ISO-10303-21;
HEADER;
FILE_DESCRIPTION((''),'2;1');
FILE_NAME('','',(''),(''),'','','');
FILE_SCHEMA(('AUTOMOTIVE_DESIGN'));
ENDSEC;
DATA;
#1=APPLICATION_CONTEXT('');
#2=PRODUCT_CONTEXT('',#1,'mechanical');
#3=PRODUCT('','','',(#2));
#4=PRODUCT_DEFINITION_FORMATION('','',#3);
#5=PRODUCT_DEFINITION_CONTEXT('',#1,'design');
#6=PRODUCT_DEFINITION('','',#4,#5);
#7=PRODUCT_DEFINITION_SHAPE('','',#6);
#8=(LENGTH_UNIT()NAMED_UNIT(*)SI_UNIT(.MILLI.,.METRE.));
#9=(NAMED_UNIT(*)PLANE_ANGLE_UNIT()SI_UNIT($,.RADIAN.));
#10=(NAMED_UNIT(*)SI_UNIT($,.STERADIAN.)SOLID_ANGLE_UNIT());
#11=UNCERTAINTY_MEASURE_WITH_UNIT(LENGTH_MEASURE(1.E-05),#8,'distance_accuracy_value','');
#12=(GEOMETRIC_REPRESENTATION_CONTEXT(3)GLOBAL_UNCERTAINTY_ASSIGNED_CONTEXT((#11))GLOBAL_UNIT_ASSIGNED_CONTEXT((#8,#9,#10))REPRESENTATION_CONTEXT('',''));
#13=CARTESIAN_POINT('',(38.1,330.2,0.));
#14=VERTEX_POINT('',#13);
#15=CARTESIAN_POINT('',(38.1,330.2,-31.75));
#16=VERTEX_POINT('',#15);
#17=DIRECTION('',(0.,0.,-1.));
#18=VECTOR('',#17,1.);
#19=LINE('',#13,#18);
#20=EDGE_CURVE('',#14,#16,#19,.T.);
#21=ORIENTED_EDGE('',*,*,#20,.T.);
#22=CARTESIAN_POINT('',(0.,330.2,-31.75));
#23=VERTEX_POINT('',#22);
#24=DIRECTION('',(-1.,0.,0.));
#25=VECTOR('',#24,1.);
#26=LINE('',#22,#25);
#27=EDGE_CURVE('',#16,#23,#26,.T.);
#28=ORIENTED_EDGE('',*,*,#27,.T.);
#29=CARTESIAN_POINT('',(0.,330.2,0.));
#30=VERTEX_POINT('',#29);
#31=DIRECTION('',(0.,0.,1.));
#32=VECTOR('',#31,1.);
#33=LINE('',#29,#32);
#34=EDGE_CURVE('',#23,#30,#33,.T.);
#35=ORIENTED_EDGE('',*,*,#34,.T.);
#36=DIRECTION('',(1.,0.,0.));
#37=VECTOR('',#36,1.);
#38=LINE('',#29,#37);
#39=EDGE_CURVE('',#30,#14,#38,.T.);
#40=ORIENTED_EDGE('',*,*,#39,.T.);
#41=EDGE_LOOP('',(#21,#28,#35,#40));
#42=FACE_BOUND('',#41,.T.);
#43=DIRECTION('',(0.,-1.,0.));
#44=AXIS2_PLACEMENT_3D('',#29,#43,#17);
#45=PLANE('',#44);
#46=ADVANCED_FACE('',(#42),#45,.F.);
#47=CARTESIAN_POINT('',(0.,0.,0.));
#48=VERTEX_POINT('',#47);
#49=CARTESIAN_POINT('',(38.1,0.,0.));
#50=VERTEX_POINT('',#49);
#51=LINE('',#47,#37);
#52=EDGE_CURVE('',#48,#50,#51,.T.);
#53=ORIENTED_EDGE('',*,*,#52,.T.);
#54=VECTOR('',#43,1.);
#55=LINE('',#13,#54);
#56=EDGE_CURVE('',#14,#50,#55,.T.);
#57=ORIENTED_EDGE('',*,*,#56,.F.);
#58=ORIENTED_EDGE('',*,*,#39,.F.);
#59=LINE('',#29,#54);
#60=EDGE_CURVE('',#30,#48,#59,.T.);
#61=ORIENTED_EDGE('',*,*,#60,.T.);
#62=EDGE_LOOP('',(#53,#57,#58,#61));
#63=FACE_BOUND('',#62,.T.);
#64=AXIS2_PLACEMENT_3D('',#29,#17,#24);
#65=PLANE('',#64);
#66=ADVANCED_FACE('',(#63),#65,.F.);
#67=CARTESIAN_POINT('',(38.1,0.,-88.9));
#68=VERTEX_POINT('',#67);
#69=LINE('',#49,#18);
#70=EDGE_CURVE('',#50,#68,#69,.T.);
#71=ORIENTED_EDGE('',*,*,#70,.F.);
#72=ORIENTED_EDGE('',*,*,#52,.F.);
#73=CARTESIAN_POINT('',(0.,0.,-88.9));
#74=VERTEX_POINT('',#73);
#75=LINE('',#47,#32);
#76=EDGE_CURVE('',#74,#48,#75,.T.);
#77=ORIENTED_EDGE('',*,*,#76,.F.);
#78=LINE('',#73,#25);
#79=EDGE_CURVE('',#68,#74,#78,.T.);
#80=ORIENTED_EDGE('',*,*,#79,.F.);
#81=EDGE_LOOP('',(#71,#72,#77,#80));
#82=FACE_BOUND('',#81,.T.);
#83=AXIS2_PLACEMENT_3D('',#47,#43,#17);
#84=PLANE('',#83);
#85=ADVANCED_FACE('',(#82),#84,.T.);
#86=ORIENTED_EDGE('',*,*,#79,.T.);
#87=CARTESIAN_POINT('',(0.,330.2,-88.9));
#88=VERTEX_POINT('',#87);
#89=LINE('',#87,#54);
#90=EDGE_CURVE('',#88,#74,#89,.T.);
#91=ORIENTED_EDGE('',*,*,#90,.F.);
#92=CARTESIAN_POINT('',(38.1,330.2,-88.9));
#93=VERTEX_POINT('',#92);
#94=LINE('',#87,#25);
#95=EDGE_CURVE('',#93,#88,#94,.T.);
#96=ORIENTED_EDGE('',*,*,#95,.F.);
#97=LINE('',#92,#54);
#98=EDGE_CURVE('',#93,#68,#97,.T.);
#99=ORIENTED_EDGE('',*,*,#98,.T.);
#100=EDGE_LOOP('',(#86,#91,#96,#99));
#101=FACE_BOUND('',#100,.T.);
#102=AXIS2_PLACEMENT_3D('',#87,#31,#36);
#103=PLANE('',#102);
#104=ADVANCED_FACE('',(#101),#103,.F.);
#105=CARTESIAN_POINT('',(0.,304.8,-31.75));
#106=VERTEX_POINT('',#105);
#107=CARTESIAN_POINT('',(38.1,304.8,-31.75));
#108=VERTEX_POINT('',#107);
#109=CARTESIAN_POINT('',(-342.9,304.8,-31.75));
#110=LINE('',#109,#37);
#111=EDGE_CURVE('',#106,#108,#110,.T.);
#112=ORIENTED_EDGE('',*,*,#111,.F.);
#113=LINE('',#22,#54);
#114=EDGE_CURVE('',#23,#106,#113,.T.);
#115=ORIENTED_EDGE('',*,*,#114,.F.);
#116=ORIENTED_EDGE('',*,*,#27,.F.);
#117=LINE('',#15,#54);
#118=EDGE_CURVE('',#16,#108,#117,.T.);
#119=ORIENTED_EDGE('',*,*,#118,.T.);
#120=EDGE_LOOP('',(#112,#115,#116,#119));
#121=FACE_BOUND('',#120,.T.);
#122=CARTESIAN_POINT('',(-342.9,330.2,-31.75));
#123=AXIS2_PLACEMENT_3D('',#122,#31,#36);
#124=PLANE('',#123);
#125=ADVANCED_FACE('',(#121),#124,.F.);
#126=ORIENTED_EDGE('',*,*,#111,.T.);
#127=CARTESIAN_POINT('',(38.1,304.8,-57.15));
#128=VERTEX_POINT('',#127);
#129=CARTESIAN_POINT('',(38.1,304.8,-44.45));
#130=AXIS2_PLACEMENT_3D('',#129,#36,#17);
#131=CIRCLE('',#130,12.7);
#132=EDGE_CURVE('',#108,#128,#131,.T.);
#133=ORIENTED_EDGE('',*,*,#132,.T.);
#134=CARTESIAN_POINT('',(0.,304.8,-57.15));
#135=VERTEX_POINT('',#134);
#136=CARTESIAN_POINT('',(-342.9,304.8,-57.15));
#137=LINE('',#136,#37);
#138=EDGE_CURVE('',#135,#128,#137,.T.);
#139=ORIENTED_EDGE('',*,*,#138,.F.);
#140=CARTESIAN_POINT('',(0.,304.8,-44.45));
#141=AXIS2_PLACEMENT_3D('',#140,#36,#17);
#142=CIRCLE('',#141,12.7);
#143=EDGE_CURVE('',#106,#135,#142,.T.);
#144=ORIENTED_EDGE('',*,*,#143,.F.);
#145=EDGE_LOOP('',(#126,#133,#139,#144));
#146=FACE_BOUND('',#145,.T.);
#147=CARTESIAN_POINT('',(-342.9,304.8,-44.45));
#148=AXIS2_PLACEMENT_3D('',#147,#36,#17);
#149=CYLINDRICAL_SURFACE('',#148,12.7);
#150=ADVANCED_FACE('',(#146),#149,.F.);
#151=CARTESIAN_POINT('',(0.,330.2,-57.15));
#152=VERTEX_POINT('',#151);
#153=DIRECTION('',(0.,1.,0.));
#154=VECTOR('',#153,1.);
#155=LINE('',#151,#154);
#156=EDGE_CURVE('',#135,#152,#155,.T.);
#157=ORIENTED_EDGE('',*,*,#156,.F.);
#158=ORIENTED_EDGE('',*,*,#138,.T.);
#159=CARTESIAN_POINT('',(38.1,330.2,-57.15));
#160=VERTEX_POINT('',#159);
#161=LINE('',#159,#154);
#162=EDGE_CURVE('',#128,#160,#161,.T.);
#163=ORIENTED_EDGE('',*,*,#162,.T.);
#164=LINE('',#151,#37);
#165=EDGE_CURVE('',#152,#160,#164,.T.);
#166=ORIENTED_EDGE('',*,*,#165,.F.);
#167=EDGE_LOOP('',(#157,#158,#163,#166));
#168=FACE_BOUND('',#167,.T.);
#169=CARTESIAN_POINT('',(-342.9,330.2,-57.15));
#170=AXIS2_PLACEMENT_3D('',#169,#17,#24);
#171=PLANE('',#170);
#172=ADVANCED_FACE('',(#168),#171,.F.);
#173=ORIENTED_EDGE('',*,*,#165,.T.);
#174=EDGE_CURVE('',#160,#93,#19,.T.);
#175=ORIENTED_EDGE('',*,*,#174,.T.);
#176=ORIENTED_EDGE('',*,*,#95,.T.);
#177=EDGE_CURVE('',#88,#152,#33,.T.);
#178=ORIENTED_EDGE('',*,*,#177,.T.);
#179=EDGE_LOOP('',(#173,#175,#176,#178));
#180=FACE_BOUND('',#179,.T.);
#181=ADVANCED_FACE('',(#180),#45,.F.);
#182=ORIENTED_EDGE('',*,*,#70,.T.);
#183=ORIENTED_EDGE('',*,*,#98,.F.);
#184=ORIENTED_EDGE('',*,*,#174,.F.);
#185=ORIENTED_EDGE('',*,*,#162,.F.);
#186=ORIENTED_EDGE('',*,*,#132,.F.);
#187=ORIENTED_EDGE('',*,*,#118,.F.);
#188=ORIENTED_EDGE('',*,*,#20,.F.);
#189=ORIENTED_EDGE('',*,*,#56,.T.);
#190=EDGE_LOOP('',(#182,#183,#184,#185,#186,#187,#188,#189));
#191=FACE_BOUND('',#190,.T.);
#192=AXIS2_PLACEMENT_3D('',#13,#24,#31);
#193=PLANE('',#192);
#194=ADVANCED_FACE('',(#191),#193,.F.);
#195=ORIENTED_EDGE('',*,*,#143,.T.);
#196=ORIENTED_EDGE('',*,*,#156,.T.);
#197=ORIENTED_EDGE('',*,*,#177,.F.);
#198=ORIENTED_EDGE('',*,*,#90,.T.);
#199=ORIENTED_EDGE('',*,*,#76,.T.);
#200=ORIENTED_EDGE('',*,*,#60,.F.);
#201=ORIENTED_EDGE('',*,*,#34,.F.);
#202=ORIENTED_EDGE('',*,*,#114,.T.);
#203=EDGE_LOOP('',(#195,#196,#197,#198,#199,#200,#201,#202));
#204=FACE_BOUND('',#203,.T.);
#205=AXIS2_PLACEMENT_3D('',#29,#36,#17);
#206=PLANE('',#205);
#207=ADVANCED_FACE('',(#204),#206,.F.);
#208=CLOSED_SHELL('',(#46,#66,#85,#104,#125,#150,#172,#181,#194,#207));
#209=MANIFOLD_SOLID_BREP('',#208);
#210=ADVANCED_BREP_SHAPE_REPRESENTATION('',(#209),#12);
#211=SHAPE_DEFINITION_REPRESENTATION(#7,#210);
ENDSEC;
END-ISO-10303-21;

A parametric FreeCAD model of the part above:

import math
import FreeCAD as App
import Part
import Sketcher
Q = App.Units.Quantity

doc = App.newDocument("Part")
body = doc.addObject("PartDesign::Body", "Body")

# Sketch on XZ plane
sketch1 = body.newObject("Sketcher::SketchObject", "Sketch")
sketch1.AttachmentSupport = (doc.getObject("XZ_Plane"), [""])
sketch1.MapMode = "FlatFace"
sketch1.addGeometry([
    Part.LineSegment(App.Vector(0, -88.9, 0), App.Vector(0, 0, 0)),
    Part.LineSegment(App.Vector(0, 0, 0), App.Vector(38.1, 0, 0)),
    Part.LineSegment(App.Vector(38.1, 0, 0), App.Vector(38.1, -88.9, 0)),
    Part.LineSegment(App.Vector(38.1, -88.9, 0), App.Vector(0, -88.9, 0)),
], False)
sketch1.addConstraint([
    Sketcher.Constraint("Coincident", 0, 2, 1, 1),
    Sketcher.Constraint("Coincident", 1, 2, 2, 1),
    Sketcher.Constraint("Coincident", 2, 2, 3, 1),
    Sketcher.Constraint("Coincident", 3, 2, 0, 1),
    Sketcher.Constraint("Vertical", 0),
    Sketcher.Constraint("Horizontal", 1),
    Sketcher.Constraint("Vertical", 2),
    Sketcher.Constraint("Horizontal", 3),
    Sketcher.Constraint("Coincident", 0, 2, -1, 1),
    Sketcher.Constraint("DistanceX", 1, 1, 1, 2, Q("1.5 in")),
    Sketcher.Constraint("DistanceY", 0, 1, 0, 2, Q("3.5 in")),
])
pad1 = body.newObject("PartDesign::Pad", "Pad")
pad1.Profile = sketch1
pad1.Length = Q("13 in")
pad1.Reversed = True

# Sketch on YZ plane
sketch2 = body.newObject("Sketcher::SketchObject", "Sketch001")
sketch2.AttachmentSupport = (doc.getObject("YZ_Plane"), [""])
sketch2.MapMode = "FlatFace"
sketch2.AttachmentOffset = App.Placement(App.Vector(0, 0, 1.5 * 25.4), App.Rotation())
sketch2.addGeometry([
    Part.LineSegment(App.Vector(304.8, -57.15, 0), App.Vector(330.2, -57.15, 0)),
    Part.ArcOfCircle(Part.Circle(App.Vector(330.2, -44.45, 0), App.Vector(0, 0, 1), 12.7), math.radians(-90), math.radians(90)),
    Part.LineSegment(App.Vector(330.2, -31.75, 0), App.Vector(304.8, -31.75, 0)),
    Part.ArcOfCircle(Part.Circle(App.Vector(304.8, -44.45, 0), App.Vector(0, 0, 1), 12.7), math.radians(90), math.radians(270)),
], False)
sketch2.addConstraint([
    Sketcher.Constraint("Tangent", 0, 2, 1, 1),
    Sketcher.Constraint("Tangent", 1, 2, 2, 1),
    Sketcher.Constraint("Tangent", 2, 2, 3, 1),
    Sketcher.Constraint("Tangent", 3, 2, 0, 1),
    Sketcher.Constraint("Horizontal", 0),
    Sketcher.Constraint("Horizontal", 2),
    Sketcher.Constraint("Radius", 1, Q("0.5 in")),
    Sketcher.Constraint("DistanceX", 0, 1, 0, 2, Q("1 in")),
    Sketcher.Constraint("DistanceX", -1, 1, 1, 3, Q("13 in")),
    Sketcher.Constraint("DistanceY", 1, 3, -1, 1, Q("1.75 in")),
])
pocket1 = body.newObject("PartDesign::Pocket", "Pocket")
pocket1.Profile = sketch2
pocket1.Length = Q("15 in")

doc.recompute()
